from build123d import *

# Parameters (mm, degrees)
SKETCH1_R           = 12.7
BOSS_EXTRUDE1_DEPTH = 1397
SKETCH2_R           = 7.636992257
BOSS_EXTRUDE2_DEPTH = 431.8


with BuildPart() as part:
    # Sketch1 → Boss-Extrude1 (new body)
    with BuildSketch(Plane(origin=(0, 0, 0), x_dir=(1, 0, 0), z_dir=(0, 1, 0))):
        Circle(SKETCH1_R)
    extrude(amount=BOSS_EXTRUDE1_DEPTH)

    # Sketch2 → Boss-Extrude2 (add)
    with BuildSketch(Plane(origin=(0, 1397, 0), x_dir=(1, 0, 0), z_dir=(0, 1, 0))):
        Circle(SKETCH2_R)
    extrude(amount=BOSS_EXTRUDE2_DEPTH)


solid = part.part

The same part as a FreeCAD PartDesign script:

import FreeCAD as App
import Part
import Sketcher
Q = App.Units.Quantity

doc = App.newDocument("Part")
body = doc.addObject("PartDesign::Body", "Body")

sketch1 = body.newObject("Sketcher::SketchObject", "Sketch")
sketch1.AttachmentSupport = (doc.getObject("XZ_Plane"), [""])
sketch1.MapMode = "FlatFace"
sketch1.addGeometry(Part.Circle(App.Vector(0, 0, 0), App.Vector(0, 0, 1), 13), False)
sketch1.addConstraint([
    Sketcher.Constraint("Coincident", 0, 3, -1, 1),
    Sketcher.Constraint("Diameter", 0, Q("1 in")),
])
pad1 = body.newObject("PartDesign::Pad", "Pad")
pad1.Profile = sketch1
pad1.Length = Q("55 in")
pad1.Reversed = True

sketch2 = body.newObject("Sketcher::SketchObject", "Sketch001")
sketch2.AttachmentSupport = (doc.getObject("XZ_Plane"), [""])
sketch2.MapMode = "FlatFace"
sketch2.AttachmentOffset = App.Placement(App.Vector(0, 0, -55 * 25.4), App.Rotation())
sketch2.addGeometry(Part.Circle(App.Vector(0, 0, 0), App.Vector(0, 0, 1), 8), False)
sketch2.addConstraint([
    Sketcher.Constraint("Coincident", 0, 3, -1, 1),
    Sketcher.Constraint("Diameter", 0, Q("15.273985 mm")),
])
pad2 = body.newObject("PartDesign::Pad", "Pad001")
pad2.Profile = sketch2
pad2.Length = Q("17 in")
pad2.Reversed = True

doc.recompute()
